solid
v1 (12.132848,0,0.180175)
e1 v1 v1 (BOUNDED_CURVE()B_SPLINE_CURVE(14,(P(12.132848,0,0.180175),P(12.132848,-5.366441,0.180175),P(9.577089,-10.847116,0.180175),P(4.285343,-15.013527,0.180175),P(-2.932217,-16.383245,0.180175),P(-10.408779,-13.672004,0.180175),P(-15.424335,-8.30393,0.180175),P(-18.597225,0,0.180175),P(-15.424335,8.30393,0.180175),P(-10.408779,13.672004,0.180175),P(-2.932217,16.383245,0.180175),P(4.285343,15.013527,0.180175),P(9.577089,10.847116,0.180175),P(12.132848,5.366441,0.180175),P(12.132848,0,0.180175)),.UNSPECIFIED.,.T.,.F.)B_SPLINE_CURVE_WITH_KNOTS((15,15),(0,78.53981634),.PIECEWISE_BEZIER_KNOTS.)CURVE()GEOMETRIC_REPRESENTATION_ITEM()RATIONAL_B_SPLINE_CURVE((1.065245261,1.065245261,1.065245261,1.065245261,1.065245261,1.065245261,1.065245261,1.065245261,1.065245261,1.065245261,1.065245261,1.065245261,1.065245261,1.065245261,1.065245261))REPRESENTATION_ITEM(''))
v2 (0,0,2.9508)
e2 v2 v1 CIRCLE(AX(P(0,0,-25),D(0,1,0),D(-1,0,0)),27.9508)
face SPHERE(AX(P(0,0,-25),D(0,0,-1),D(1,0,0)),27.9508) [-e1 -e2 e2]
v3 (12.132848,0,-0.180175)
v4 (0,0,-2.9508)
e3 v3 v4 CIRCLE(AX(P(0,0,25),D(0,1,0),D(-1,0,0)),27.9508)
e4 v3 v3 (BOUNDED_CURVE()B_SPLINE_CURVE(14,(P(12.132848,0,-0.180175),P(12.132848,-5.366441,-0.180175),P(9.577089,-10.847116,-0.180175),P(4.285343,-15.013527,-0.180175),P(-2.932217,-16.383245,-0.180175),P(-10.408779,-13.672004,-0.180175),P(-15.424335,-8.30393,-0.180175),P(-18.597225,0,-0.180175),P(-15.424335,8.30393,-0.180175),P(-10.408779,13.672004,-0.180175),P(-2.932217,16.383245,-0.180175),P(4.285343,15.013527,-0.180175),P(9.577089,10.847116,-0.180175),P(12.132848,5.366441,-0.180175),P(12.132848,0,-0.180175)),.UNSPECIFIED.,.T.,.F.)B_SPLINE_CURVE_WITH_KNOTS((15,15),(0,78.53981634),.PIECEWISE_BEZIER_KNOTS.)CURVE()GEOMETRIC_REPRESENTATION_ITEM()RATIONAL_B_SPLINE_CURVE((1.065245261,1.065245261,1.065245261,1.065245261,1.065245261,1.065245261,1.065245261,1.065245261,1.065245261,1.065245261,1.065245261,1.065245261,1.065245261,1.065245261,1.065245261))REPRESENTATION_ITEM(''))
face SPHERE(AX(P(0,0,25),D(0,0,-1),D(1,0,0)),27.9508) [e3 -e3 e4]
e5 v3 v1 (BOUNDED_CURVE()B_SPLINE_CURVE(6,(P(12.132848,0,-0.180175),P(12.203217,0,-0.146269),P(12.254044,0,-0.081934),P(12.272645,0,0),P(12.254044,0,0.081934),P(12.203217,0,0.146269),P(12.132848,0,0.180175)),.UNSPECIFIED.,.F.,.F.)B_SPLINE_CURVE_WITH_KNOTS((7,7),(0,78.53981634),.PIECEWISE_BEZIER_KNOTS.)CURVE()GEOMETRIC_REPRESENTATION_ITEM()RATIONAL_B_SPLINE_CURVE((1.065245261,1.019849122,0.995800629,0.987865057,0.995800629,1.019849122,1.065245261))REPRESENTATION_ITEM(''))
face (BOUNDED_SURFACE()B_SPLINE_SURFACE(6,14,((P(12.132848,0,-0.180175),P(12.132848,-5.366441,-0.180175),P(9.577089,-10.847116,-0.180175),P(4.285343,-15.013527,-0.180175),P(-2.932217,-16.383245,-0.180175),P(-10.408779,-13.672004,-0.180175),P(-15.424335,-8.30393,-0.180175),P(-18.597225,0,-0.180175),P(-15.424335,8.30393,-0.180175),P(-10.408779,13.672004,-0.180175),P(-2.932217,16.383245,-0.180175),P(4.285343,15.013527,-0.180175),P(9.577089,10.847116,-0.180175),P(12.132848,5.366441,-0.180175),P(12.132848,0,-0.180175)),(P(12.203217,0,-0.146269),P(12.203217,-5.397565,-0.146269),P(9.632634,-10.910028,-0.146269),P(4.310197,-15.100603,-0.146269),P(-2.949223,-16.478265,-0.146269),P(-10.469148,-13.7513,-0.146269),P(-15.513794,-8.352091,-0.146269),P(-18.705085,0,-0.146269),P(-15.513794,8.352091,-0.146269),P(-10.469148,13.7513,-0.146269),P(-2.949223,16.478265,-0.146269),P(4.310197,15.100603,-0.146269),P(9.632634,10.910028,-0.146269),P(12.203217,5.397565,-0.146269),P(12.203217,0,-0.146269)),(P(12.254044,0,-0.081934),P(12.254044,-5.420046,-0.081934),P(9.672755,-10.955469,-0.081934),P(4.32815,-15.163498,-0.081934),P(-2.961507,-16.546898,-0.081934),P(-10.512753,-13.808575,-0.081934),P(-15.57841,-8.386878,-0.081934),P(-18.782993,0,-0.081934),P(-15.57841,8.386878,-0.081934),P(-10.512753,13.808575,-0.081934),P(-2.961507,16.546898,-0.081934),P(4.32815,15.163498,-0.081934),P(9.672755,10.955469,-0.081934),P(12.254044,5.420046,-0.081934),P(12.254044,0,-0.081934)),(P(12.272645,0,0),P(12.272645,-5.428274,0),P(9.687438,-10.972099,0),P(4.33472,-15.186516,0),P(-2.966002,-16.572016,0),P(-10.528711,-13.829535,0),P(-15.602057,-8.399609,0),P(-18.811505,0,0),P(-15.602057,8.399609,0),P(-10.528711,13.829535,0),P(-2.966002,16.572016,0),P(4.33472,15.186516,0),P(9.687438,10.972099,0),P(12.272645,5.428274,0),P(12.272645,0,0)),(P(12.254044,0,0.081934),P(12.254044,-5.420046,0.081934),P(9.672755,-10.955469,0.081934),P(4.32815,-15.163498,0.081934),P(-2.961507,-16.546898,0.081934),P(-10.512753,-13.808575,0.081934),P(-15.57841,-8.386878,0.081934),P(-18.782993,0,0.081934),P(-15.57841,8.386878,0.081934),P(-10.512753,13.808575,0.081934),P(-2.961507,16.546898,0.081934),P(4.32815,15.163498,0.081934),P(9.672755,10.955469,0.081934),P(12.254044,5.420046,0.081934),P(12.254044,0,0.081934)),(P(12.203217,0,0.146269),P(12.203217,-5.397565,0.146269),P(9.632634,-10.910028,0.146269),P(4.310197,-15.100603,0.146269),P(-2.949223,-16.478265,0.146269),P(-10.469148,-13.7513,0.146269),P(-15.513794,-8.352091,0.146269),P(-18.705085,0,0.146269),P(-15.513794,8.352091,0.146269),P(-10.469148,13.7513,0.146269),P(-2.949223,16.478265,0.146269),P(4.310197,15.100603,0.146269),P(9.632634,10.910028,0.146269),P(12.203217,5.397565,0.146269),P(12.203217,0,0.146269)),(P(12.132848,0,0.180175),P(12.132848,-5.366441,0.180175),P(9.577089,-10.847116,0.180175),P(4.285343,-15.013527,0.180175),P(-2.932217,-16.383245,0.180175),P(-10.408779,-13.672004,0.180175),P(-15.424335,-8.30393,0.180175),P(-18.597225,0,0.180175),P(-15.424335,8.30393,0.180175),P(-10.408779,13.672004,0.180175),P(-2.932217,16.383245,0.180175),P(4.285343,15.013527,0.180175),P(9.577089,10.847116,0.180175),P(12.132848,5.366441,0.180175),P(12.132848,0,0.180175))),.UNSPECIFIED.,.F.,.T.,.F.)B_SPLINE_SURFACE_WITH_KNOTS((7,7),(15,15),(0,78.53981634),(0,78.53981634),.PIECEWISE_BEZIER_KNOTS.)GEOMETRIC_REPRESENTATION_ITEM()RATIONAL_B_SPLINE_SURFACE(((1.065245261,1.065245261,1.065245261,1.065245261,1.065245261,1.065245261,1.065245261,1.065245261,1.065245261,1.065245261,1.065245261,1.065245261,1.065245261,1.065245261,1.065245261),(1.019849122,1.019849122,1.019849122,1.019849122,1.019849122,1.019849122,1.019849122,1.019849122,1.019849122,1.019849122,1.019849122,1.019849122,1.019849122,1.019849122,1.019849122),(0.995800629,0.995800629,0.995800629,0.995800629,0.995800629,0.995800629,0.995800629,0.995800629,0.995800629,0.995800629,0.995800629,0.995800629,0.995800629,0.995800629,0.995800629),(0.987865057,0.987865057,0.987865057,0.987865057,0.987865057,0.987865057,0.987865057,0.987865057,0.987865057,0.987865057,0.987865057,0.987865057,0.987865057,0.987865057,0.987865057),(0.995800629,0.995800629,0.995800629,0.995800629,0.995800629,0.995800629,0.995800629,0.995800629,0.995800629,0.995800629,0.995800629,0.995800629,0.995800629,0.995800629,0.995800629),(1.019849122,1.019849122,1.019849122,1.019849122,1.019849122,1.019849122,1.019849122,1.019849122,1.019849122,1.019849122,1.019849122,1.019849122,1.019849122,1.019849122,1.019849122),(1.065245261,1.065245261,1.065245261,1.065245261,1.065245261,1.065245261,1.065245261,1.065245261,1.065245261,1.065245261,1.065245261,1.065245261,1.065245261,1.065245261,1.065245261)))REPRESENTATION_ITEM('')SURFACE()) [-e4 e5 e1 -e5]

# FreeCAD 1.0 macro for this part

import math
import FreeCAD as App
import Part
import Sketcher
Q = App.Units.Quantity


def edges_at(feature, points):
    """Names of the edges that pass closest to the given points."""
    edges = feature.Shape.Edges
    near = lambda p: min(range(len(edges)), key=lambda i: edges[i].distToShape(Part.Vertex(*p))[0])
    return sorted({f"Edge{near(p) + 1}" for p in points})

doc = App.newDocument("Part")
body = doc.addObject("PartDesign::Body", "Body")

sketch1 = doc.addObject("Sketcher::SketchObject", "Sketch")
body.addObject(sketch1)
sketch1.AttachmentSupport = (doc.XZ_Plane, [""])
sketch1.MapMode = "FlatFace"
sketch1.addGeometry([
    Part.LineSegment(App.Vector(0, -2.9508, 0), App.Vector(0, 2.9508, 0)),
    Part.ArcOfCircle(Part.Circle(App.Vector(0, -25, 0), App.Vector(0, 0, 1), 27.9508), math.radians(63.434949), math.radians(90)),
    Part.ArcOfCircle(Part.Circle(App.Vector(0, 25, 0), App.Vector(0, 0, 1), 27.9508), math.radians(-90), math.radians(-63.434949)),
], False)
sketch1.addConstraint([
    Sketcher.Constraint("Coincident", 0, 2, 1, 2),
    Sketcher.Constraint("Coincident", 1, 1, 2, 2),
    Sketcher.Constraint("Coincident", 2, 1, 0, 1),
    Sketcher.Constraint("Vertical", 0),
    Sketcher.Constraint("Equal", 1, 2),
    Sketcher.Constraint("Symmetric", 1, 3, 2, 3, -1, 1),
    Sketcher.Constraint("PointOnObject", 1, 3, -2),
    Sketcher.Constraint("PointOnObject", 0, 2, -2),
    Sketcher.Constraint("DistanceY", 1, 3, -1, 1, Q("25 mm")),
    Sketcher.Constraint("DistanceX", -1, 1, 1, 1, Q("12.5 mm")),
])
revolution = doc.addObject("PartDesign::Revolution", "Revolution")
body.addObject(revolution)
revolution.Profile = sketch1
revolution.ReferenceAxis = (sketch1, ["V_Axis"])
revolution.Angle = 360
doc.recompute()

fillet = doc.addObject("PartDesign::Fillet", "Fillet")
body.addObject(fillet)
fillet.Base = (revolution, edges_at(revolution, [(-12.5, 0, 0)]))
fillet.Radius = 0.2

doc.recompute()
